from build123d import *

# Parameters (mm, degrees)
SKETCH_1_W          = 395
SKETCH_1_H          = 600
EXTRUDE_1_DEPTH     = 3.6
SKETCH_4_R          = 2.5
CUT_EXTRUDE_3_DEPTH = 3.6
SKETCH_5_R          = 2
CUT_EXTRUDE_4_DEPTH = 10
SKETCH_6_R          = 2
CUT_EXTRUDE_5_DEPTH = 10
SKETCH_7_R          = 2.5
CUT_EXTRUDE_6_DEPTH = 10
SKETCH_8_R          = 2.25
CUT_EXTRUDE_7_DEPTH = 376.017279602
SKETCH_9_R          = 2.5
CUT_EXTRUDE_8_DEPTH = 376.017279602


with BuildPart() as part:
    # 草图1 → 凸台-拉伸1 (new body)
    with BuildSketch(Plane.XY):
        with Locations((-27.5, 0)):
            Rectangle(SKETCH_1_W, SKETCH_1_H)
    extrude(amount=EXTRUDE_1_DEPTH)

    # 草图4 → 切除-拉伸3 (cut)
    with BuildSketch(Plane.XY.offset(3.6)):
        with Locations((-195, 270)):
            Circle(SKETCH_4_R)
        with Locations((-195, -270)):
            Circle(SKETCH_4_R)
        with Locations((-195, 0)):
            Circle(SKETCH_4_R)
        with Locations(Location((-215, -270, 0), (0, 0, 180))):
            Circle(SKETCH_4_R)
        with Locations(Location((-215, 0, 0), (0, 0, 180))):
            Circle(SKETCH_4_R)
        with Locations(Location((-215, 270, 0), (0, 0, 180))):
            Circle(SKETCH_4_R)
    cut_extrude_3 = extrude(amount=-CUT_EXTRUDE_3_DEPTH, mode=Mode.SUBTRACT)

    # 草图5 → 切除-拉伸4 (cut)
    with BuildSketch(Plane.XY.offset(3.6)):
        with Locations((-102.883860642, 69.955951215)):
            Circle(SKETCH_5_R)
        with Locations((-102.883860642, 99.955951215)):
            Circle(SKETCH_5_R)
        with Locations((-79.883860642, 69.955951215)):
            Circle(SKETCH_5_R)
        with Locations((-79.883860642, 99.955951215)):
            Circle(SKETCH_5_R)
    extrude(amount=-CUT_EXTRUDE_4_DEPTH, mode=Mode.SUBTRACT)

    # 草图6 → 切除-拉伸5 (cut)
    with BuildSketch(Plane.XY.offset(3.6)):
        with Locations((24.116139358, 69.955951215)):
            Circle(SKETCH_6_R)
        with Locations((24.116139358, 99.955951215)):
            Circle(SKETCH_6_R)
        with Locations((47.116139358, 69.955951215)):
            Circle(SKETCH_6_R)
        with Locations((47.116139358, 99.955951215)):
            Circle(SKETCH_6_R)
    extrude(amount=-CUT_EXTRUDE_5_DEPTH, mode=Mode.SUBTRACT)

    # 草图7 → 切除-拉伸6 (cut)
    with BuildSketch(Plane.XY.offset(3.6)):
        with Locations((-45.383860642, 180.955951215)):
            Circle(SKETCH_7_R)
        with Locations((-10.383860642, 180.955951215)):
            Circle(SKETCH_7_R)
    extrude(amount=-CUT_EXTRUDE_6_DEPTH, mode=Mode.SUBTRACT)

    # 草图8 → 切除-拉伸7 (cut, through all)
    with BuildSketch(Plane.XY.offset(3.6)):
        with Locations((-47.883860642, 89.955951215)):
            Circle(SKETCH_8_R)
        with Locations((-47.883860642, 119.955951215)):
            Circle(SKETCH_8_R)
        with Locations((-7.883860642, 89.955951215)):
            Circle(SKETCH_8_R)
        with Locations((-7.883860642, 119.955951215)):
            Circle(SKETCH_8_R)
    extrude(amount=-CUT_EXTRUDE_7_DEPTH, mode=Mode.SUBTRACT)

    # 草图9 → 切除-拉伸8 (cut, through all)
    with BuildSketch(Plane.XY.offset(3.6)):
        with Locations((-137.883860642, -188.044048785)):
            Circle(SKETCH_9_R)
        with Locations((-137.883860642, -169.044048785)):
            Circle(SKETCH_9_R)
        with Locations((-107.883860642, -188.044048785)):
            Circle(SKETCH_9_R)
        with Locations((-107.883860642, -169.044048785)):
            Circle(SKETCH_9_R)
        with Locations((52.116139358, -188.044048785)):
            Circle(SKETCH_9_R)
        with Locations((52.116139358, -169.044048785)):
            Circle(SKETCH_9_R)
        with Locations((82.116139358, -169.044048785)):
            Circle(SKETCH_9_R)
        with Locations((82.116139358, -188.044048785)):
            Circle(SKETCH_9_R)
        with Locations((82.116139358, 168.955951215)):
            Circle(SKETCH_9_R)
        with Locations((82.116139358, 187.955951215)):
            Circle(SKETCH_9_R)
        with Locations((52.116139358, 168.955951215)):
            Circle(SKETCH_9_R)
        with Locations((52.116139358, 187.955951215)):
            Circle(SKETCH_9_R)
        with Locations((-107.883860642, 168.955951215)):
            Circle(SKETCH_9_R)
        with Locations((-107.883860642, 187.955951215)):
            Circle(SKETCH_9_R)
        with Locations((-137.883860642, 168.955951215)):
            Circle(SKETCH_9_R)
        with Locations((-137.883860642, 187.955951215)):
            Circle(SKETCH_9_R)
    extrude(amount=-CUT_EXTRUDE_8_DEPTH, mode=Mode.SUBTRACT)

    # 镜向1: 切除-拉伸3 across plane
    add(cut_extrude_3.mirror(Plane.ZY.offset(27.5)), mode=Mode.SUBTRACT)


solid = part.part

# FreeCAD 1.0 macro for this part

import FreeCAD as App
import Part
import Sketcher

V = App.Vector


def add_polygon(sketch, points):
    """Adds a closed chain of lines whose ends are joined by coincident constraints."""
    first, n = sketch.GeometryCount, len(points)
    for a, b in zip(points, points[1:] + points[:1]):
        sketch.addGeometry(Part.LineSegment(App.Vector(*a, 0), App.Vector(*b, 0)), False)
    for i in range(n):
        sketch.addConstraint(Sketcher.Constraint("Coincident", first + i, 2, first + (i + 1) % n, 1))

doc = App.newDocument("Part")
body = doc.addObject("PartDesign::Body", "Body")

# Sketch on XY plane
sketch1 = body.newObject("Sketcher::SketchObject", "Sketch")
sketch1.AttachmentSupport = (doc.getObject("XY_Plane"), [""])
sketch1.MapMode = "FlatFace"
add_polygon(sketch1, [(-225, 300), (-225, -300), (170, -300), (170, 300)])  # lines 0-3
sketch1.addConstraint([
    Sketcher.Constraint("Vertical", 0),
    Sketcher.Constraint("Horizontal", 1),
    Sketcher.Constraint("Vertical", 2),
    Sketcher.Constraint("Horizontal", 3),
    Sketcher.Constraint("DistanceX", 1, 1, 1, 2, 395.0),
    Sketcher.Constraint("DistanceY", 0, 2, 0, 1, 600.0),
    Sketcher.Constraint("DistanceX", 0, 2, -1, 1, 225.0),
    Sketcher.Constraint("DistanceY", 0, 2, -1, 1, 300.0),
])
pad1 = body.newObject("PartDesign::Pad", "Pad")
pad1.Profile = sketch1
pad1.Length = 3.6

# Sketch on XY plane
sketch2 = body.newObject("Sketcher::SketchObject", "Sketch001")
sketch2.AttachmentSupport = (doc.getObject("XY_Plane"), [""])
sketch2.MapMode = "FlatFace"
sketch2.AttachmentOffset = App.Placement(V(0, 0, 3.6), App.Rotation())
sketch2.addGeometry([
    Part.Circle(V(-195, 270, 0), V(0, 0, 1), 2.5),  # 0
    Part.Circle(V(-195, -270, 0), V(0, 0, 1), 2.5),  # 1
    Part.Circle(V(-195, 0, 0), V(0, 0, 1), 2.5),  # 2
    Part.Circle(V(-215, -270, 0), V(0, 0, 1), 2.5),  # 3
    Part.Circle(V(-215, 0, 0), V(0, 0, 1), 2.5),  # 4
    Part.Circle(V(-215, 270, 0), V(0, 0, 1), 2.5),  # 5
], False)
sketch2.addConstraint([
    Sketcher.Constraint("Equal", 0, 1),
    Sketcher.Constraint("Equal", 1, 2),
    Sketcher.Constraint("Equal", 2, 3),
    Sketcher.Constraint("Equal", 3, 4),
    Sketcher.Constraint("Equal", 4, 5),
    Sketcher.Constraint("Symmetric", 0, 3, 1, 3, -1),
    Sketcher.Constraint("Symmetric", 3, 3, 5, 3, -1),
    Sketcher.Constraint("PointOnObject", 2, 3, -1),
    Sketcher.Constraint("PointOnObject", 4, 3, -1),
    Sketcher.Constraint("Horizontal", 1, 3, 3, 3),
    Sketcher.Constraint("Vertical", 1, 3, 2, 3),
    Sketcher.Constraint("Vertical", 3, 3, 4, 3),
    Sketcher.Constraint("Diameter", 0, 5.0),
    Sketcher.Constraint("DistanceX", 0, 3, -1, 1, 195.0),
    Sketcher.Constraint("DistanceY", -1, 1, 0, 3, 270.0),
    Sketcher.Constraint("DistanceX", 3, 3, -1, 1, 215.0),
])
pocket1 = body.newObject("PartDesign::Pocket", "Pocket")
pocket1.Profile = sketch2
pocket1.Length = 3.6

# Sketch on XY plane
sketch3 = body.newObject("Sketcher::SketchObject", "Sketch002")
sketch3.AttachmentSupport = (doc.getObject("XY_Plane"), [""])
sketch3.MapMode = "FlatFace"
sketch3.AttachmentOffset = App.Placement(V(0, 0, 3.6), App.Rotation())
sketch3.addGeometry([
    Part.Circle(V(-102.9, 70, 0), V(0, 0, 1), 2),
    Part.Circle(V(-102.9, 100, 0), V(0, 0, 1), 2),
    Part.Circle(V(-79.9, 70, 0), V(0, 0, 1), 2),
    Part.Circle(V(-79.9, 100, 0), V(0, 0, 1), 2),
], False)
sketch3.addConstraint([
    Sketcher.Constraint("Equal", 0, 1),
    Sketcher.Constraint("Equal", 1, 2),
    Sketcher.Constraint("Equal", 2, 3),
    Sketcher.Constraint("Horizontal", 0, 3, 2, 3),
    Sketcher.Constraint("Horizontal", 1, 3, 3, 3),
    Sketcher.Constraint("Vertical", 0, 3, 1, 3),
    Sketcher.Constraint("Vertical", 2, 3, 3, 3),
    Sketcher.Constraint("Diameter", 0, 4.0),
    Sketcher.Constraint("DistanceY", 0, 3, 1, 3, 30.0),
    Sketcher.Constraint("DistanceX", 0, 3, 2, 3, 23.0),
    Sketcher.Constraint("DistanceX", 0, 3, -1, 1, 102.883861),
    Sketcher.Constraint("DistanceY", -1, 1, 0, 3, 69.955951),
])
pocket2 = body.newObject("PartDesign::Pocket", "Pocket001")
pocket2.Profile = sketch3
pocket2.Length = 10

# Sketch on XY plane
sketch4 = body.newObject("Sketcher::SketchObject", "Sketch003")
sketch4.AttachmentSupport = (doc.getObject("XY_Plane"), [""])
sketch4.MapMode = "FlatFace"
sketch4.AttachmentOffset = App.Placement(V(0, 0, 3.6), App.Rotation())
sketch4.addGeometry([
    Part.Circle(V(24.1, 70, 0), V(0, 0, 1), 2),
    Part.Circle(V(24.1, 100, 0), V(0, 0, 1), 2),
    Part.Circle(V(47.1, 70, 0), V(0, 0, 1), 2),
    Part.Circle(V(47.1, 100, 0), V(0, 0, 1), 2),
], False)
sketch4.addConstraint([
    Sketcher.Constraint("Equal", 0, 1),
    Sketcher.Constraint("Equal", 1, 2),
    Sketcher.Constraint("Equal", 2, 3),
    Sketcher.Constraint("Horizontal", 0, 3, 2, 3),
    Sketcher.Constraint("Horizontal", 1, 3, 3, 3),
    Sketcher.Constraint("Vertical", 0, 3, 1, 3),
    Sketcher.Constraint("Vertical", 2, 3, 3, 3),
    Sketcher.Constraint("Diameter", 0, 4.0),
    Sketcher.Constraint("DistanceY", 0, 3, 1, 3, 30.0),
    Sketcher.Constraint("DistanceX", 0, 3, 2, 3, 23.0),
    Sketcher.Constraint("DistanceX", -1, 1, 0, 3, 24.116139),
    Sketcher.Constraint("DistanceY", -1, 1, 0, 3, 69.955951),
])
pocket3 = body.newObject("PartDesign::Pocket", "Pocket002")
pocket3.Profile = sketch4
pocket3.Length = 10

# Sketch on XY plane
sketch5 = body.newObject("Sketcher::SketchObject", "Sketch004")
sketch5.AttachmentSupport = (doc.getObject("XY_Plane"), [""])
sketch5.MapMode = "FlatFace"
sketch5.AttachmentOffset = App.Placement(V(0, 0, 3.6), App.Rotation())
sketch5.addGeometry([
    Part.Circle(V(-45.4, 181, 0), V(0, 0, 1), 2.5),
    Part.Circle(V(-10.4, 181, 0), V(0, 0, 1), 2.5),
], False)
sketch5.addConstraint([
    Sketcher.Constraint("Equal", 0, 1),
    Sketcher.Constraint("Horizontal", 0, 3, 1, 3),
    Sketcher.Constraint("Diameter", 0, 5.0),
    Sketcher.Constraint("DistanceX", 0, 3, 1, 3, 35.0),
    Sketcher.Constraint("DistanceX", 0, 3, -1, 1, 45.383861),
    Sketcher.Constraint("DistanceY", -1, 1, 0, 3, 180.955951),
])
pocket4 = body.newObject("PartDesign::Pocket", "Pocket003")
pocket4.Profile = sketch5
pocket4.Length = 10

# Sketch on XY plane
sketch6 = body.newObject("Sketcher::SketchObject", "Sketch005")
sketch6.AttachmentSupport = (doc.getObject("XY_Plane"), [""])
sketch6.MapMode = "FlatFace"
sketch6.AttachmentOffset = App.Placement(V(0, 0, 3.6), App.Rotation())
sketch6.addGeometry([
    Part.Circle(V(-47.9, 90, 0), V(0, 0, 1), 2.2),
    Part.Circle(V(-47.9, 120, 0), V(0, 0, 1), 2.2),
    Part.Circle(V(-7.9, 90, 0), V(0, 0, 1), 2.2),
    Part.Circle(V(-7.9, 120, 0), V(0, 0, 1), 2.2),
], False)
sketch6.addConstraint([
    Sketcher.Constraint("Equal", 0, 1),
    Sketcher.Constraint("Equal", 1, 2),
    Sketcher.Constraint("Equal", 2, 3),
    Sketcher.Constraint("Horizontal", 0, 3, 2, 3),
    Sketcher.Constraint("Horizontal", 1, 3, 3, 3),
    Sketcher.Constraint("Vertical", 0, 3, 1, 3),
    Sketcher.Constraint("Vertical", 2, 3, 3, 3),
    Sketcher.Constraint("Diameter", 0, 4.5),
    Sketcher.Constraint("DistanceY", 0, 3, 1, 3, 30.0),
    Sketcher.Constraint("DistanceX", 0, 3, 2, 3, 40.0),
    Sketcher.Constraint("DistanceX", 0, 3, -1, 1, 47.883861),
    Sketcher.Constraint("DistanceY", -1, 1, 0, 3, 89.955951),
])
pocket5 = body.newObject("PartDesign::Pocket", "Pocket004")
pocket5.Profile = sketch6
pocket5.Type = "ThroughAll"

# Sketch on XY plane
sketch7 = body.newObject("Sketcher::SketchObject", "Sketch006")
sketch7.AttachmentSupport = (doc.getObject("XY_Plane"), [""])
sketch7.MapMode = "FlatFace"
sketch7.AttachmentOffset = App.Placement(V(0, 0, 3.6), App.Rotation())
sketch7.addGeometry([
    Part.Circle(V(-137.9, -188, 0), V(0, 0, 1), 2.5),  # 0
    Part.Circle(V(-137.9, -169, 0), V(0, 0, 1), 2.5),  # 1
    Part.Circle(V(-107.9, -188, 0), V(0, 0, 1), 2.5),  # 2
    Part.Circle(V(-107.9, -169, 0), V(0, 0, 1), 2.5),  # 3
    Part.Circle(V(52.1, -188, 0), V(0, 0, 1), 2.5),  # 4
    Part.Circle(V(52.1, -169, 0), V(0, 0, 1), 2.5),  # 5
    Part.Circle(V(82.1, -169, 0), V(0, 0, 1), 2.5),  # 6
    Part.Circle(V(82.1, -188, 0), V(0, 0, 1), 2.5),  # 7
    Part.Circle(V(82.1, 169, 0), V(0, 0, 1), 2.5),  # 8
    Part.Circle(V(82.1, 188, 0), V(0, 0, 1), 2.5),  # 9
    Part.Circle(V(52.1, 169, 0), V(0, 0, 1), 2.5),  # 10
    Part.Circle(V(52.1, 188, 0), V(0, 0, 1), 2.5),  # 11
    Part.Circle(V(-107.9, 169, 0), V(0, 0, 1), 2.5),  # 12
    Part.Circle(V(-107.9, 188, 0), V(0, 0, 1), 2.5),  # 13
    Part.Circle(V(-137.9, 169, 0), V(0, 0, 1), 2.5),  # 14
    Part.Circle(V(-137.9, 188, 0), V(0, 0, 1), 2.5),  # 15
], False)
sketch7.addConstraint([
    Sketcher.Constraint("Equal", 0, 1),
    Sketcher.Constraint("Equal", 1, 2),
    Sketcher.Constraint("Equal", 2, 3),
    Sketcher.Constraint("Equal", 3, 4),
    Sketcher.Constraint("Equal", 4, 5),
    Sketcher.Constraint("Equal", 5, 6),
    Sketcher.Constraint("Equal", 6, 7),
    Sketcher.Constraint("Equal", 7, 8),
    Sketcher.Constraint("Equal", 8, 9),
    Sketcher.Constraint("Equal", 9, 10),
    Sketcher.Constraint("Equal", 10, 11),
    Sketcher.Constraint("Equal", 11, 12),
    Sketcher.Constraint("Equal", 12, 13),
    Sketcher.Constraint("Equal", 13, 14),
    Sketcher.Constraint("Equal", 14, 15),
    Sketcher.Constraint("Horizontal", 0, 3, 2, 3),
    Sketcher.Constraint("Horizontal", 1, 3, 3, 3),
    Sketcher.Constraint("Horizontal", 2, 3, 4, 3),
    Sketcher.Constraint("Horizontal", 3, 3, 5, 3),
    Sketcher.Constraint("Horizontal", 5, 3, 6, 3),
    Sketcher.Constraint("Horizontal", 4, 3, 7, 3),
    Sketcher.Constraint("Horizontal", 8, 3, 10, 3),
    Sketcher.Constraint("Horizontal", 9, 3, 11, 3),
    Sketcher.Constraint("Horizontal", 10, 3, 12, 3),
    Sketcher.Constraint("Horizontal", 11, 3, 13, 3),
    Sketcher.Constraint("Horizontal", 12, 3, 14, 3),
    Sketcher.Constraint("Horizontal", 13, 3, 15, 3),
    Sketcher.Constraint("Vertical", 0, 3, 1, 3),
    Sketcher.Constraint("Vertical", 2, 3, 3, 3),
    Sketcher.Constraint("Vertical", 4, 3, 5, 3),
    Sketcher.Constraint("Vertical", 6, 3, 7, 3),
    Sketcher.Constraint("Vertical", 7, 3, 8, 3),
    Sketcher.Constraint("Vertical", 8, 3, 9, 3),
    Sketcher.Constraint("Vertical", 5, 3, 10, 3),
    Sketcher.Constraint("Vertical", 10, 3, 11, 3),
    Sketcher.Constraint("Vertical", 3, 3, 12, 3),
    Sketcher.Constraint("Vertical", 12, 3, 13, 3),
    Sketcher.Constraint("Vertical", 1, 3, 14, 3),
    Sketcher.Constraint("Vertical", 14, 3, 15, 3),
    Sketcher.Constraint("Diameter", 0, 5.0),
    Sketcher.Constraint("DistanceY", 0, 3, 1, 3, 19.0),
    Sketcher.Constraint("DistanceX", 0, 3, 2, 3, 30.0),
    Sketcher.Constraint("DistanceX", 2, 3, 4, 3, 160.0),
    Sketcher.Constraint("DistanceX", 5, 3, 6, 3, 30.0),
    Sketcher.Constraint("DistanceY", 6, 3, 8, 3, 338.0),
    Sketcher.Constraint("DistanceY", 8, 3, 9, 3, 19.0),
    Sketcher.Constraint("DistanceX", 0, 3, -1, 1, 137.883861),
    Sketcher.Constraint("DistanceY", 0, 3, -1, 1, 188.044049),
])
pocket6 = body.newObject("PartDesign::Pocket", "Pocket005")
pocket6.Profile = sketch7
pocket6.Type = "ThroughAll"
doc.recompute()

datumplane = body.newObject("PartDesign::Plane", "DatumPlane")
datumplane.AttachmentSupport = (doc.getObject("YZ_Plane"), [""])
datumplane.MapMode = "FlatFace"
datumplane.AttachmentOffset = App.Placement(V(0, 0, -27.5), App.Rotation())
mirrored = body.newObject("PartDesign::Mirrored", "Mirrored")
mirrored.Originals = [pocket1]
mirrored.MirrorPlane = (datumplane, [""])
body.Tip = mirrored

doc.recompute()
